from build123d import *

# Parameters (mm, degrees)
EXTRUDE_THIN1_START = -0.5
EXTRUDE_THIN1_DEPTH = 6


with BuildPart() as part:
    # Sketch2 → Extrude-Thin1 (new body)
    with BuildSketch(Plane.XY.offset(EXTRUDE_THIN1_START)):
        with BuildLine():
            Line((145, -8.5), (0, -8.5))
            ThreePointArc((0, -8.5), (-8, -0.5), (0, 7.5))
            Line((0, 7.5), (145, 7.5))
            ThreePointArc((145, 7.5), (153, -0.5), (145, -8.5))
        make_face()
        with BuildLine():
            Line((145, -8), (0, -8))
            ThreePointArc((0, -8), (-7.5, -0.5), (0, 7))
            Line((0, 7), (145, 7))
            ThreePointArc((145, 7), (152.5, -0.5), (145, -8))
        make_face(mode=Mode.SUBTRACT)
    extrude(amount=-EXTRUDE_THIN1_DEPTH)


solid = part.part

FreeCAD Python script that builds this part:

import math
import FreeCAD as App
import Part
import Sketcher
from FreeCAD import Vector

doc = App.newDocument("Part")
body = doc.addObject("PartDesign::Body", "Body")

sketch1 = doc.addObject("Sketcher::SketchObject", "Sketch")
body.addObject(sketch1)
sketch1.AttachmentSupport = (doc.XY_Plane, [""])
sketch1.MapMode = "FlatFace"
sketch1.AttachmentOffset = App.Placement(Vector(0, 0, -0.5), App.Rotation())
sketch1.addGeometry(Part.LineSegment(Vector(0, -8, 0), Vector(145, -8, 0)), False)
sketch1.addGeometry(Part.ArcOfCircle(Part.Circle(Vector(145, 0, 0), Vector(0, 0, 1), 8), math.radians(-90), math.radians(90)), False)
sketch1.addGeometry(Part.LineSegment(Vector(145, 8, 0), Vector(0, 8, 0)), False)
sketch1.addGeometry(Part.ArcOfCircle(Part.Circle(Vector(0, 0, 0), Vector(0, 0, 1), 8), math.radians(90), math.radians(270)), False)
sketch1.addGeometry(Part.LineSegment(Vector(145, -8, 0), Vector(0, -8, 0)), False)
sketch1.addGeometry(Part.ArcOfCircle(Part.Circle(Vector(0, 0, 0), Vector(0, 0, 1), 8), math.radians(90), math.radians(270)), False)
sketch1.addGeometry(Part.LineSegment(Vector(0, 7, 0), Vector(145, 7, 0)), False)
sketch1.addGeometry(Part.ArcOfCircle(Part.Circle(Vector(145, 0, 0), Vector(0, 0, 1), 8), math.radians(-90), math.radians(90)), False)
sketch1.addConstraint(Sketcher.Constraint("Tangent", 0, 2, 1, 1))
sketch1.addConstraint(Sketcher.Constraint("Tangent", 1, 2, 2, 1))
sketch1.addConstraint(Sketcher.Constraint("Tangent", 2, 2, 3, 1))
sketch1.addConstraint(Sketcher.Constraint("Tangent", 3, 2, 0, 1))
sketch1.addConstraint(Sketcher.Constraint("Tangent", 4, 2, 5, 2))
sketch1.addConstraint(Sketcher.Constraint("Tangent", 5, 1, 6, 1))
sketch1.addConstraint(Sketcher.Constraint("Tangent", 6, 2, 7, 2))
sketch1.addConstraint(Sketcher.Constraint("Tangent", 7, 1, 4, 1))
sketch1.addConstraint(Sketcher.Constraint("Horizontal", 0))
sketch1.addConstraint(Sketcher.Constraint("Horizontal", 2))
sketch1.addConstraint(Sketcher.Constraint("Horizontal", 4))
sketch1.addConstraint(Sketcher.Constraint("Horizontal", 6))
sketch1.addConstraint(Sketcher.Constraint("Coincident", 5, 3, 3, 3))
sketch1.addConstraint(Sketcher.Constraint("PointOnObject", 3, 3, -2))
sketch1.addConstraint(Sketcher.Constraint("Vertical", 7, 3, 0, 2))
sketch1.addConstraint(Sketcher.Constraint("Radius", 1, 8.0))
sketch1.addConstraint(Sketcher.Constraint("Radius", 5, 7.5))
sketch1.addConstraint(Sketcher.Constraint("DistanceX", 0, 1, 0, 2, 145.0))
sketch1.addConstraint(Sketcher.Constraint("DistanceY", 4, 2, -1, 1, 8.0))
pad1 = doc.addObject("PartDesign::Pad", "Pad")
body.addObject(pad1)
pad1.Profile = sketch1
pad1.Length = 6
pad1.Reversed = True

doc.recompute()
